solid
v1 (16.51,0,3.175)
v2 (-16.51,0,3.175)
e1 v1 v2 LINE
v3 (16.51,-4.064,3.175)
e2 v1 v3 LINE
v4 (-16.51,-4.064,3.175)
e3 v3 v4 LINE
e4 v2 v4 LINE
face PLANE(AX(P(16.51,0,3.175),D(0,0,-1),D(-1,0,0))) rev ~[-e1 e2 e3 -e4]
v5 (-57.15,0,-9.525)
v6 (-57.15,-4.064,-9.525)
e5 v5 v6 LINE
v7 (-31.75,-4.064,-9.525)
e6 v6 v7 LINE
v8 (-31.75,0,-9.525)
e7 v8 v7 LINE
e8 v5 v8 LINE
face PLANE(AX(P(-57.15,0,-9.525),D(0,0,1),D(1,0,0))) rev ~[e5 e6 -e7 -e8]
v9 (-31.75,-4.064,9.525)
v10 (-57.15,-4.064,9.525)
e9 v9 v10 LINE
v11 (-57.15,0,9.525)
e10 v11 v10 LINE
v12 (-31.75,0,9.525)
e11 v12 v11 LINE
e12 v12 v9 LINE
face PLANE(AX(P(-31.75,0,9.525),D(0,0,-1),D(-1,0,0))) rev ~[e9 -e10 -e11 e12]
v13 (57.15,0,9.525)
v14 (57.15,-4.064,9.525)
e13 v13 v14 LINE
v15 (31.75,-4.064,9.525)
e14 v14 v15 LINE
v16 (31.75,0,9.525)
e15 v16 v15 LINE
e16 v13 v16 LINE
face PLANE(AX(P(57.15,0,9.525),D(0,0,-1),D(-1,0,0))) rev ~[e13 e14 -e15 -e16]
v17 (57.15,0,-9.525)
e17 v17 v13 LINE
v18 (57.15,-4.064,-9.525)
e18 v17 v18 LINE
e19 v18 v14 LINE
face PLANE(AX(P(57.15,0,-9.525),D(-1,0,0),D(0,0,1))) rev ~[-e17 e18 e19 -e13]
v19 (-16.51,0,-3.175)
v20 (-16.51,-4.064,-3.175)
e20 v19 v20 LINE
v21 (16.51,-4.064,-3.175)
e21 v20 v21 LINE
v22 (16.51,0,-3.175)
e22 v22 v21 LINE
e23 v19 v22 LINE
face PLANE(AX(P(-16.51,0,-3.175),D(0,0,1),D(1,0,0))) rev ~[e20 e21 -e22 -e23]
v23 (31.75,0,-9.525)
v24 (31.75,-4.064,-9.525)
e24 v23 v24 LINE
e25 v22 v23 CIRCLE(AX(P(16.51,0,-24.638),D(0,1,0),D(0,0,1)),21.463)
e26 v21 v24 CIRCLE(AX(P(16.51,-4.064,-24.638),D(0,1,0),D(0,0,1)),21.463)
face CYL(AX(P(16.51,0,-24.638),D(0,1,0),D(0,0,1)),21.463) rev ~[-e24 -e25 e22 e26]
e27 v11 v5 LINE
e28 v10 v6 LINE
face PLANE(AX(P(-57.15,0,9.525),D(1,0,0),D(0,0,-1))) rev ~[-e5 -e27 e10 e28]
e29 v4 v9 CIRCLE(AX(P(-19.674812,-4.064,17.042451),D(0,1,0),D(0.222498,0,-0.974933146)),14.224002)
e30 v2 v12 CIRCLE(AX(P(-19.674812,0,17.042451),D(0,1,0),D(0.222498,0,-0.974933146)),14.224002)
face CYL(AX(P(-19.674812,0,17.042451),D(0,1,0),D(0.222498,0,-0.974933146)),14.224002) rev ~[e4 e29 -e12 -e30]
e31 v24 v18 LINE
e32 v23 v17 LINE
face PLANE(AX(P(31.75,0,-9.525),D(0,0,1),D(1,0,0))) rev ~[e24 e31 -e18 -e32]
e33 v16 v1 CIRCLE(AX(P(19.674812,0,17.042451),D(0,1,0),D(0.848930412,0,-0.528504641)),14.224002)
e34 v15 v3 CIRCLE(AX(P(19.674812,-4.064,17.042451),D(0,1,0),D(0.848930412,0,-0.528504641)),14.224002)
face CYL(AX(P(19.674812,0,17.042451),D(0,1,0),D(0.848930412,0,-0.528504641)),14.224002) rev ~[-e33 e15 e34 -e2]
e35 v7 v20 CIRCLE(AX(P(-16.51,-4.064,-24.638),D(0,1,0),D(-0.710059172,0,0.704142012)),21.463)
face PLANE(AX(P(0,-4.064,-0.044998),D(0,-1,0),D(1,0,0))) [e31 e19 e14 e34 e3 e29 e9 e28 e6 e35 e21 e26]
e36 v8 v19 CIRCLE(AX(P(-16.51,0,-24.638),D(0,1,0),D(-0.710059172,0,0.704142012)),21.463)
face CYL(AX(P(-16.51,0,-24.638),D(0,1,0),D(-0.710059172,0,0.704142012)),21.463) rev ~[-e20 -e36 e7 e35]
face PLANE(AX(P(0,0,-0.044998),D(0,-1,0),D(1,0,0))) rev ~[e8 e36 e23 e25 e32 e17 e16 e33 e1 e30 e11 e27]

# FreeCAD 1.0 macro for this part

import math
import FreeCAD as App
import Part
import Sketcher

V = App.Vector
Q = App.Units.Quantity

doc = App.newDocument("Part")
body = doc.addObject("PartDesign::Body", "Body")

# Sketch on XZ plane
sketch1 = doc.addObject("Sketcher::SketchObject", "Sketch")
body.addObject(sketch1)
sketch1.AttachmentSupport = (doc.XZ_Plane, [""])
sketch1.MapMode = "FlatFace"
sketch1.addGeometry(Part.LineSegment(V(16.51, 3.175, 0), V(-16.51, 3.175, 0)), False)
sketch1.addGeometry(Part.ArcOfCircle(Part.Circle(V(-19.674812, 17.042451, 0), V(0, 0, 1), 14.224002), math.radians(-148.095525), math.radians(-77.144205)), False)
sketch1.addGeometry(Part.LineSegment(V(-31.75, 9.525, 0), V(-57.15, 9.525, 0)), False)
sketch1.addGeometry(Part.LineSegment(V(-57.15, 9.525, 0), V(-57.15, -9.525, 0)), False)
sketch1.addGeometry(Part.LineSegment(V(-57.15, -9.525, 0), V(-31.75, -9.525, 0)), False)
sketch1.addGeometry(Part.ArcOfCircle(Part.Circle(V(-16.51, -24.638, 0), V(0, 0, 1), 21.463), math.radians(90), math.radians(135.23973)), False)
sketch1.addGeometry(Part.LineSegment(V(-16.51, -3.175, 0), V(16.51, -3.175, 0)), False)
sketch1.addGeometry(Part.ArcOfCircle(Part.Circle(V(16.51, -24.638, 0), V(0, 0, 1), 21.463), math.radians(44.76027), math.radians(90)), False)
sketch1.addGeometry(Part.LineSegment(V(31.75, -9.525, 0), V(57.15, -9.525, 0)), False)
sketch1.addGeometry(Part.LineSegment(V(57.15, -9.525, 0), V(57.15, 9.525, 0)), False)
sketch1.addGeometry(Part.LineSegment(V(57.15, 9.525, 0), V(31.75, 9.525, 0)), False)
sketch1.addGeometry(Part.ArcOfCircle(Part.Circle(V(19.674812, 17.042451, 0), V(0, 0, 1), 14.224002), math.radians(-102.855795), math.radians(-31.904475)), False)
sketch1.addConstraint(Sketcher.Constraint("Coincident", 0, 2, 1, 2))
sketch1.addConstraint(Sketcher.Constraint("Coincident", 1, 1, 2, 1))
sketch1.addConstraint(Sketcher.Constraint("Coincident", 2, 2, 3, 1))
sketch1.addConstraint(Sketcher.Constraint("Coincident", 3, 2, 4, 1))
sketch1.addConstraint(Sketcher.Constraint("Coincident", 4, 2, 5, 2))
sketch1.addConstraint(Sketcher.Constraint("Tangent", 5, 1, 6, 1))
sketch1.addConstraint(Sketcher.Constraint("Tangent", 6, 2, 7, 2))
sketch1.addConstraint(Sketcher.Constraint("Coincident", 7, 1, 8, 1))
sketch1.addConstraint(Sketcher.Constraint("Coincident", 8, 2, 9, 1))
sketch1.addConstraint(Sketcher.Constraint("Coincident", 9, 2, 10, 1))
sketch1.addConstraint(Sketcher.Constraint("Coincident", 10, 2, 11, 2))
sketch1.addConstraint(Sketcher.Constraint("Coincident", 11, 1, 0, 1))
sketch1.addConstraint(Sketcher.Constraint("Horizontal", 0))
sketch1.addConstraint(Sketcher.Constraint("Horizontal", 2))
sketch1.addConstraint(Sketcher.Constraint("Vertical", 3))
sketch1.addConstraint(Sketcher.Constraint("Horizontal", 4))
sketch1.addConstraint(Sketcher.Constraint("Horizontal", 6))
sketch1.addConstraint(Sketcher.Constraint("Horizontal", 8))
sketch1.addConstraint(Sketcher.Constraint("Vertical", 9))
sketch1.addConstraint(Sketcher.Constraint("Horizontal", 10))
sketch1.addConstraint(Sketcher.Constraint("Equal", 5, 7))
sketch1.addConstraint(Sketcher.Constraint("Equal", 1, 11))
sketch1.addConstraint(Sketcher.Constraint("Symmetric", 0, 2, 6, 2, -1, 1))
sketch1.addConstraint(Sketcher.Constraint("Symmetric", 1, 1, 7, 1, -1, 1))
sketch1.addConstraint(Sketcher.Constraint("Symmetric", 3, 2, 9, 2, -1, 1))
sketch1.addConstraint(Sketcher.Constraint("Symmetric", 1, 3, 11, 3, -2))
sketch1.addConstraint(Sketcher.Constraint("Symmetric", 4, 2, 7, 1, -2))
sketch1.addConstraint(Sketcher.Constraint("DistanceX", 2, 2, 2, 1, Q("1 in")))
sketch1.addConstraint(Sketcher.Constraint("Radius", 1, Q("0.5600001 in")))
sketch1.addConstraint(Sketcher.Constraint("DistanceX", 0, 2, 0, 1, Q("1.3 in")))
sketch1.addConstraint(Sketcher.Constraint("Radius", 5, Q("0.845 in")))
sketch1.addConstraint(Sketcher.Constraint("DistanceY", 3, 2, 3, 1, Q("0.75 in")))
sketch1.addConstraint(Sketcher.Constraint("DistanceX", 1, 1, 0, 2, Q("0.6 in")))
pad1 = doc.addObject("PartDesign::Pad", "Pad")
body.addObject(pad1)
pad1.Profile = sketch1
pad1.Length = Q("0.16 in")

doc.recompute()
